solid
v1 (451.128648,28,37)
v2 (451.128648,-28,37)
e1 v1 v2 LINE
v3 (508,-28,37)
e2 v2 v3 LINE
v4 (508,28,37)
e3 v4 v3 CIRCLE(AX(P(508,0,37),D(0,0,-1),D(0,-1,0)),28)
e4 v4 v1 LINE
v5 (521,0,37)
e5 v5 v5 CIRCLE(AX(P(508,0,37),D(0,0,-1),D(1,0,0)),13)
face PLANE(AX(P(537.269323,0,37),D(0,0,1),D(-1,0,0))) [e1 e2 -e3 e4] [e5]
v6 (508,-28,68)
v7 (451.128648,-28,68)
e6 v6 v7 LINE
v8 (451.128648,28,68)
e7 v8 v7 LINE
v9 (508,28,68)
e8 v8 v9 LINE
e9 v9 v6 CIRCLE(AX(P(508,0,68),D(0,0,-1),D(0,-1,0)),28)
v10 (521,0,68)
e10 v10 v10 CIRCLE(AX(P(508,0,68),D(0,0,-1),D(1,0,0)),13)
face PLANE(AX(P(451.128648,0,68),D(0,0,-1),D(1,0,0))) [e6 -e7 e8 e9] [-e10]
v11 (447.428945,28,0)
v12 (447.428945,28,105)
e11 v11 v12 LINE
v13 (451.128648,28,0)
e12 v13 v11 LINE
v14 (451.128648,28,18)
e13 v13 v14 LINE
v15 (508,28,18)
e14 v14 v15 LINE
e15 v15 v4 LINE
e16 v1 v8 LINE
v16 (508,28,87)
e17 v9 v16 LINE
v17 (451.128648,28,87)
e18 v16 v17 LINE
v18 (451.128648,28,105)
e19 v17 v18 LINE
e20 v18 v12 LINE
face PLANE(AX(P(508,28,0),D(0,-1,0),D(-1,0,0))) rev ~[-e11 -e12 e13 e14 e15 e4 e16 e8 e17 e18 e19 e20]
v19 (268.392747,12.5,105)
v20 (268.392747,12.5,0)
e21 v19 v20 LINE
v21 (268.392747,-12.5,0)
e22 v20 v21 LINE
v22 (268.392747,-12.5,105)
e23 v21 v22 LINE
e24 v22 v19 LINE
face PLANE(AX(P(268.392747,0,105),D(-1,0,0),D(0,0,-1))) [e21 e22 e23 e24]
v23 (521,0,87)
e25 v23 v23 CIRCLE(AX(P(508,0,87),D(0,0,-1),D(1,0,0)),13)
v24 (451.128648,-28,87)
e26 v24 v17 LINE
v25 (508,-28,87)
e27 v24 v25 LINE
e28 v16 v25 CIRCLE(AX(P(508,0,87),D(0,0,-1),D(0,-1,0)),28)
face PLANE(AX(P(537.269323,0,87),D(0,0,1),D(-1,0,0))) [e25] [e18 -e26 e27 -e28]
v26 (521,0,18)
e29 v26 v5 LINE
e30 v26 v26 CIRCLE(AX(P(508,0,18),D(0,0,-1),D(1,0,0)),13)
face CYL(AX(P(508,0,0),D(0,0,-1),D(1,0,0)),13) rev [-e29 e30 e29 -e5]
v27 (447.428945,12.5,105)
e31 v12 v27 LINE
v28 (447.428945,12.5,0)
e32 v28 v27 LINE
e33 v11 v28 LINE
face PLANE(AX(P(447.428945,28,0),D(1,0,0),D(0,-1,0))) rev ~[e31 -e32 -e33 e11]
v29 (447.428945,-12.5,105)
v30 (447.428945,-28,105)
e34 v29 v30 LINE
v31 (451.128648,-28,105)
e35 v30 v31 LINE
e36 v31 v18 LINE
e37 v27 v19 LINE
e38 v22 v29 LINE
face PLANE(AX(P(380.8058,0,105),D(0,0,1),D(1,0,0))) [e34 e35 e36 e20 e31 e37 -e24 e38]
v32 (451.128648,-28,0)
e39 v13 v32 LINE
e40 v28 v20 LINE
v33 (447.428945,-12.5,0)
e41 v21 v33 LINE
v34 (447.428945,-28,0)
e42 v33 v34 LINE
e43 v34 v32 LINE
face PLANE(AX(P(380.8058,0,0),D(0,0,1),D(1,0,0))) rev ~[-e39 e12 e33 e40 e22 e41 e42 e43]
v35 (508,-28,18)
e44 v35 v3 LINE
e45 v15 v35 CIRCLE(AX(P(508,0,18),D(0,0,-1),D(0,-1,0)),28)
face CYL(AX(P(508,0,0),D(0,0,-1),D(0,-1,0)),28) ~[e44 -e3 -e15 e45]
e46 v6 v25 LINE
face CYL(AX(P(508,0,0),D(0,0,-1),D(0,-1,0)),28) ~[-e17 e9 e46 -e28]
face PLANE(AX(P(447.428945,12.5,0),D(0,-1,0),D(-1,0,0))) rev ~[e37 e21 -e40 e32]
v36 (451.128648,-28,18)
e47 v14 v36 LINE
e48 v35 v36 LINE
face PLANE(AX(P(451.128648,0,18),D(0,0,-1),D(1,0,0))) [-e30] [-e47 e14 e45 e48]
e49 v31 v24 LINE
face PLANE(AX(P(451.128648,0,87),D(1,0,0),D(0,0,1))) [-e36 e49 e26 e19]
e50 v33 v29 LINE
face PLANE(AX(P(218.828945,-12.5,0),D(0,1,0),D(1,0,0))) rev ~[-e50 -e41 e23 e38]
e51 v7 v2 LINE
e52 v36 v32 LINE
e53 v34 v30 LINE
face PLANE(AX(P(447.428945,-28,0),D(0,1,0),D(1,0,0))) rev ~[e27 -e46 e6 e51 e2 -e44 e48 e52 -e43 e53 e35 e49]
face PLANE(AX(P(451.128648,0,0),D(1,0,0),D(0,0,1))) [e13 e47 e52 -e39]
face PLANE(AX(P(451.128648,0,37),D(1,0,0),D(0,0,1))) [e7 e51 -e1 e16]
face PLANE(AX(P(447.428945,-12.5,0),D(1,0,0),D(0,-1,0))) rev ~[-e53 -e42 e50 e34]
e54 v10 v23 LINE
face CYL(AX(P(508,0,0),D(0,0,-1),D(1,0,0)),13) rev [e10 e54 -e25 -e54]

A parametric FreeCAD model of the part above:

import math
import FreeCAD as App
import Part
import Sketcher
from FreeCAD import Vector


def add_polygon(sketch, points):
    """Adds a closed chain of lines whose ends are joined by coincident constraints."""
    first, n = sketch.GeometryCount, len(points)
    for a, b in zip(points, points[1:] + points[:1]):
        sketch.addGeometry(Part.LineSegment(App.Vector(*a, 0), App.Vector(*b, 0)), False)
    for i in range(n):
        sketch.addConstraint(Sketcher.Constraint("Coincident", first + i, 2, first + (i + 1) % n, 1))

doc = App.newDocument("Part")
body = doc.addObject("PartDesign::Body", "Body")

sketch1 = doc.addObject("Sketcher::SketchObject", "Sketch")
body.addObject(sketch1)
sketch1.AttachmentSupport = (doc.XY_Plane, [""])
sketch1.MapMode = "FlatFace"
sketch1.addGeometry(Part.LineSegment(Vector(447, -28, 0), Vector(508, -28, 0)), False)
sketch1.addGeometry(Part.ArcOfCircle(Part.Circle(Vector(508, 0, 0), Vector(0, 0, 1), 28), math.radians(-90), math.radians(90)), False)
sketch1.addGeometry(Part.LineSegment(Vector(508, 28, 0), Vector(447, 28, 0)), False)
sketch1.addGeometry(Part.LineSegment(Vector(447, 28, 0), Vector(447, 12, 0)), False)
sketch1.addGeometry(Part.LineSegment(Vector(447, 12, 0), Vector(219, 12, 0)), False)
sketch1.addGeometry(Part.LineSegment(Vector(219, 12, 0), Vector(219, -12, 0)), False)
sketch1.addGeometry(Part.LineSegment(Vector(219, -12, 0), Vector(447, -12, 0)), False)
sketch1.addGeometry(Part.LineSegment(Vector(447, -12, 0), Vector(447, -28, 0)), False)
sketch1.addGeometry(Part.Circle(Vector(508, 0, 0), Vector(0, 0, 1), 13), False)
sketch1.addConstraint(Sketcher.Constraint("Tangent", 0, 2, 1, 1))
sketch1.addConstraint(Sketcher.Constraint("Tangent", 1, 2, 2, 1))
sketch1.addConstraint(Sketcher.Constraint("Coincident", 2, 2, 3, 1))
sketch1.addConstraint(Sketcher.Constraint("Coincident", 3, 2, 4, 1))
sketch1.addConstraint(Sketcher.Constraint("Coincident", 4, 2, 5, 1))
sketch1.addConstraint(Sketcher.Constraint("Coincident", 5, 2, 6, 1))
sketch1.addConstraint(Sketcher.Constraint("Coincident", 6, 2, 7, 1))
sketch1.addConstraint(Sketcher.Constraint("Coincident", 7, 2, 0, 1))
sketch1.addConstraint(Sketcher.Constraint("Horizontal", 0))
sketch1.addConstraint(Sketcher.Constraint("Horizontal", 2))
sketch1.addConstraint(Sketcher.Constraint("Vertical", 3))
sketch1.addConstraint(Sketcher.Constraint("Horizontal", 4))
sketch1.addConstraint(Sketcher.Constraint("Vertical", 5))
sketch1.addConstraint(Sketcher.Constraint("Horizontal", 6))
sketch1.addConstraint(Sketcher.Constraint("Vertical", 7))
sketch1.addConstraint(Sketcher.Constraint("Coincident", 8, 3, 1, 3))
sketch1.addConstraint(Sketcher.Constraint("Symmetric", 3, 2, 6, 2, -1))
sketch1.addConstraint(Sketcher.Constraint("PointOnObject", 1, 3, -1))
sketch1.addConstraint(Sketcher.Constraint("Diameter", 8, 26.0))
sketch1.addConstraint(Sketcher.Constraint("Radius", 1, 28.0))
sketch1.addConstraint(Sketcher.Constraint("DistanceY", 5, 2, 5, 1, 25.0))
sketch1.addConstraint(Sketcher.Constraint("DistanceX", 4, 2, 4, 1, 228.6))
sketch1.addConstraint(Sketcher.Constraint("DistanceX", -1, 1, 1, 3, 508.0))
sketch1.addConstraint(Sketcher.Constraint("DistanceX", 0, 1, 0, 2, 60.571055))
pad1 = doc.addObject("PartDesign::Pad", "Pad")
body.addObject(pad1)
pad1.Profile = sketch1
pad1.Length = 105
body2 = doc.addObject("PartDesign::Body", "Body001")

sketch2 = doc.addObject("Sketcher::SketchObject", "Sketch001")
body2.addObject(sketch2)
sketch2.AttachmentSupport = (doc.getObject("XZ_Plane001"), [""])
sketch2.MapMode = "FlatFace"
add_polygon(sketch2, [(268, 105), (268, 0), (451, 0), (451, 18), (537, 18), (537, 37), (451, 37), (451, 68), (537, 68), (537, 87), (451, 87), (451, 105)])
sketch2.addConstraint(Sketcher.Constraint("Vertical", 0))
sketch2.addConstraint(Sketcher.Constraint("Horizontal", 1))
sketch2.addConstraint(Sketcher.Constraint("Vertical", 2))
sketch2.addConstraint(Sketcher.Constraint("Horizontal", 3))
sketch2.addConstraint(Sketcher.Constraint("Vertical", 4))
sketch2.addConstraint(Sketcher.Constraint("Horizontal", 5))
sketch2.addConstraint(Sketcher.Constraint("Vertical", 6))
sketch2.addConstraint(Sketcher.Constraint("Horizontal", 7))
sketch2.addConstraint(Sketcher.Constraint("Vertical", 8))
sketch2.addConstraint(Sketcher.Constraint("Horizontal", 9))
sketch2.addConstraint(Sketcher.Constraint("Vertical", 10))
sketch2.addConstraint(Sketcher.Constraint("Horizontal", 11))
sketch2.addConstraint(Sketcher.Constraint("PointOnObject", 0, 2, -1))
sketch2.addConstraint(Sketcher.Constraint("Vertical", 2, 2, 5, 2))
sketch2.addConstraint(Sketcher.Constraint("Vertical", 4, 2, 7, 2))
sketch2.addConstraint(Sketcher.Constraint("Vertical", 6, 2, 9, 2))
sketch2.addConstraint(Sketcher.Constraint("Equal", 4, 8))
sketch2.addConstraint(Sketcher.Constraint("Equal", 2, 10))
sketch2.addConstraint(Sketcher.Constraint("DistanceY", 0, 2, 0, 1, 105.0))
sketch2.addConstraint(Sketcher.Constraint("DistanceY", 2, 1, 2, 2, 18.0))
sketch2.addConstraint(Sketcher.Constraint("DistanceY", 4, 1, 4, 2, 19.0))
sketch2.addConstraint(Sketcher.Constraint("DistanceX", 1, 1, 1, 2, 182.735901))
sketch2.addConstraint(Sketcher.Constraint("DistanceX", 3, 1, 3, 2, 86.140675))
sketch2.addConstraint(Sketcher.Constraint("DistanceX", -1, 1, 0, 2, 268.392747))
pad2 = doc.addObject("PartDesign::Pad", "Pad001")
body2.addObject(pad2)
pad2.Profile = sketch2
pad2.Length = 105
pad2.Midplane = True
doc.recompute()

boolean = doc.addObject("PartDesign::Boolean", "Boolean")
body.addObject(boolean)
boolean.Type = "Common"
boolean.addObjects([body2])

doc.recompute()
